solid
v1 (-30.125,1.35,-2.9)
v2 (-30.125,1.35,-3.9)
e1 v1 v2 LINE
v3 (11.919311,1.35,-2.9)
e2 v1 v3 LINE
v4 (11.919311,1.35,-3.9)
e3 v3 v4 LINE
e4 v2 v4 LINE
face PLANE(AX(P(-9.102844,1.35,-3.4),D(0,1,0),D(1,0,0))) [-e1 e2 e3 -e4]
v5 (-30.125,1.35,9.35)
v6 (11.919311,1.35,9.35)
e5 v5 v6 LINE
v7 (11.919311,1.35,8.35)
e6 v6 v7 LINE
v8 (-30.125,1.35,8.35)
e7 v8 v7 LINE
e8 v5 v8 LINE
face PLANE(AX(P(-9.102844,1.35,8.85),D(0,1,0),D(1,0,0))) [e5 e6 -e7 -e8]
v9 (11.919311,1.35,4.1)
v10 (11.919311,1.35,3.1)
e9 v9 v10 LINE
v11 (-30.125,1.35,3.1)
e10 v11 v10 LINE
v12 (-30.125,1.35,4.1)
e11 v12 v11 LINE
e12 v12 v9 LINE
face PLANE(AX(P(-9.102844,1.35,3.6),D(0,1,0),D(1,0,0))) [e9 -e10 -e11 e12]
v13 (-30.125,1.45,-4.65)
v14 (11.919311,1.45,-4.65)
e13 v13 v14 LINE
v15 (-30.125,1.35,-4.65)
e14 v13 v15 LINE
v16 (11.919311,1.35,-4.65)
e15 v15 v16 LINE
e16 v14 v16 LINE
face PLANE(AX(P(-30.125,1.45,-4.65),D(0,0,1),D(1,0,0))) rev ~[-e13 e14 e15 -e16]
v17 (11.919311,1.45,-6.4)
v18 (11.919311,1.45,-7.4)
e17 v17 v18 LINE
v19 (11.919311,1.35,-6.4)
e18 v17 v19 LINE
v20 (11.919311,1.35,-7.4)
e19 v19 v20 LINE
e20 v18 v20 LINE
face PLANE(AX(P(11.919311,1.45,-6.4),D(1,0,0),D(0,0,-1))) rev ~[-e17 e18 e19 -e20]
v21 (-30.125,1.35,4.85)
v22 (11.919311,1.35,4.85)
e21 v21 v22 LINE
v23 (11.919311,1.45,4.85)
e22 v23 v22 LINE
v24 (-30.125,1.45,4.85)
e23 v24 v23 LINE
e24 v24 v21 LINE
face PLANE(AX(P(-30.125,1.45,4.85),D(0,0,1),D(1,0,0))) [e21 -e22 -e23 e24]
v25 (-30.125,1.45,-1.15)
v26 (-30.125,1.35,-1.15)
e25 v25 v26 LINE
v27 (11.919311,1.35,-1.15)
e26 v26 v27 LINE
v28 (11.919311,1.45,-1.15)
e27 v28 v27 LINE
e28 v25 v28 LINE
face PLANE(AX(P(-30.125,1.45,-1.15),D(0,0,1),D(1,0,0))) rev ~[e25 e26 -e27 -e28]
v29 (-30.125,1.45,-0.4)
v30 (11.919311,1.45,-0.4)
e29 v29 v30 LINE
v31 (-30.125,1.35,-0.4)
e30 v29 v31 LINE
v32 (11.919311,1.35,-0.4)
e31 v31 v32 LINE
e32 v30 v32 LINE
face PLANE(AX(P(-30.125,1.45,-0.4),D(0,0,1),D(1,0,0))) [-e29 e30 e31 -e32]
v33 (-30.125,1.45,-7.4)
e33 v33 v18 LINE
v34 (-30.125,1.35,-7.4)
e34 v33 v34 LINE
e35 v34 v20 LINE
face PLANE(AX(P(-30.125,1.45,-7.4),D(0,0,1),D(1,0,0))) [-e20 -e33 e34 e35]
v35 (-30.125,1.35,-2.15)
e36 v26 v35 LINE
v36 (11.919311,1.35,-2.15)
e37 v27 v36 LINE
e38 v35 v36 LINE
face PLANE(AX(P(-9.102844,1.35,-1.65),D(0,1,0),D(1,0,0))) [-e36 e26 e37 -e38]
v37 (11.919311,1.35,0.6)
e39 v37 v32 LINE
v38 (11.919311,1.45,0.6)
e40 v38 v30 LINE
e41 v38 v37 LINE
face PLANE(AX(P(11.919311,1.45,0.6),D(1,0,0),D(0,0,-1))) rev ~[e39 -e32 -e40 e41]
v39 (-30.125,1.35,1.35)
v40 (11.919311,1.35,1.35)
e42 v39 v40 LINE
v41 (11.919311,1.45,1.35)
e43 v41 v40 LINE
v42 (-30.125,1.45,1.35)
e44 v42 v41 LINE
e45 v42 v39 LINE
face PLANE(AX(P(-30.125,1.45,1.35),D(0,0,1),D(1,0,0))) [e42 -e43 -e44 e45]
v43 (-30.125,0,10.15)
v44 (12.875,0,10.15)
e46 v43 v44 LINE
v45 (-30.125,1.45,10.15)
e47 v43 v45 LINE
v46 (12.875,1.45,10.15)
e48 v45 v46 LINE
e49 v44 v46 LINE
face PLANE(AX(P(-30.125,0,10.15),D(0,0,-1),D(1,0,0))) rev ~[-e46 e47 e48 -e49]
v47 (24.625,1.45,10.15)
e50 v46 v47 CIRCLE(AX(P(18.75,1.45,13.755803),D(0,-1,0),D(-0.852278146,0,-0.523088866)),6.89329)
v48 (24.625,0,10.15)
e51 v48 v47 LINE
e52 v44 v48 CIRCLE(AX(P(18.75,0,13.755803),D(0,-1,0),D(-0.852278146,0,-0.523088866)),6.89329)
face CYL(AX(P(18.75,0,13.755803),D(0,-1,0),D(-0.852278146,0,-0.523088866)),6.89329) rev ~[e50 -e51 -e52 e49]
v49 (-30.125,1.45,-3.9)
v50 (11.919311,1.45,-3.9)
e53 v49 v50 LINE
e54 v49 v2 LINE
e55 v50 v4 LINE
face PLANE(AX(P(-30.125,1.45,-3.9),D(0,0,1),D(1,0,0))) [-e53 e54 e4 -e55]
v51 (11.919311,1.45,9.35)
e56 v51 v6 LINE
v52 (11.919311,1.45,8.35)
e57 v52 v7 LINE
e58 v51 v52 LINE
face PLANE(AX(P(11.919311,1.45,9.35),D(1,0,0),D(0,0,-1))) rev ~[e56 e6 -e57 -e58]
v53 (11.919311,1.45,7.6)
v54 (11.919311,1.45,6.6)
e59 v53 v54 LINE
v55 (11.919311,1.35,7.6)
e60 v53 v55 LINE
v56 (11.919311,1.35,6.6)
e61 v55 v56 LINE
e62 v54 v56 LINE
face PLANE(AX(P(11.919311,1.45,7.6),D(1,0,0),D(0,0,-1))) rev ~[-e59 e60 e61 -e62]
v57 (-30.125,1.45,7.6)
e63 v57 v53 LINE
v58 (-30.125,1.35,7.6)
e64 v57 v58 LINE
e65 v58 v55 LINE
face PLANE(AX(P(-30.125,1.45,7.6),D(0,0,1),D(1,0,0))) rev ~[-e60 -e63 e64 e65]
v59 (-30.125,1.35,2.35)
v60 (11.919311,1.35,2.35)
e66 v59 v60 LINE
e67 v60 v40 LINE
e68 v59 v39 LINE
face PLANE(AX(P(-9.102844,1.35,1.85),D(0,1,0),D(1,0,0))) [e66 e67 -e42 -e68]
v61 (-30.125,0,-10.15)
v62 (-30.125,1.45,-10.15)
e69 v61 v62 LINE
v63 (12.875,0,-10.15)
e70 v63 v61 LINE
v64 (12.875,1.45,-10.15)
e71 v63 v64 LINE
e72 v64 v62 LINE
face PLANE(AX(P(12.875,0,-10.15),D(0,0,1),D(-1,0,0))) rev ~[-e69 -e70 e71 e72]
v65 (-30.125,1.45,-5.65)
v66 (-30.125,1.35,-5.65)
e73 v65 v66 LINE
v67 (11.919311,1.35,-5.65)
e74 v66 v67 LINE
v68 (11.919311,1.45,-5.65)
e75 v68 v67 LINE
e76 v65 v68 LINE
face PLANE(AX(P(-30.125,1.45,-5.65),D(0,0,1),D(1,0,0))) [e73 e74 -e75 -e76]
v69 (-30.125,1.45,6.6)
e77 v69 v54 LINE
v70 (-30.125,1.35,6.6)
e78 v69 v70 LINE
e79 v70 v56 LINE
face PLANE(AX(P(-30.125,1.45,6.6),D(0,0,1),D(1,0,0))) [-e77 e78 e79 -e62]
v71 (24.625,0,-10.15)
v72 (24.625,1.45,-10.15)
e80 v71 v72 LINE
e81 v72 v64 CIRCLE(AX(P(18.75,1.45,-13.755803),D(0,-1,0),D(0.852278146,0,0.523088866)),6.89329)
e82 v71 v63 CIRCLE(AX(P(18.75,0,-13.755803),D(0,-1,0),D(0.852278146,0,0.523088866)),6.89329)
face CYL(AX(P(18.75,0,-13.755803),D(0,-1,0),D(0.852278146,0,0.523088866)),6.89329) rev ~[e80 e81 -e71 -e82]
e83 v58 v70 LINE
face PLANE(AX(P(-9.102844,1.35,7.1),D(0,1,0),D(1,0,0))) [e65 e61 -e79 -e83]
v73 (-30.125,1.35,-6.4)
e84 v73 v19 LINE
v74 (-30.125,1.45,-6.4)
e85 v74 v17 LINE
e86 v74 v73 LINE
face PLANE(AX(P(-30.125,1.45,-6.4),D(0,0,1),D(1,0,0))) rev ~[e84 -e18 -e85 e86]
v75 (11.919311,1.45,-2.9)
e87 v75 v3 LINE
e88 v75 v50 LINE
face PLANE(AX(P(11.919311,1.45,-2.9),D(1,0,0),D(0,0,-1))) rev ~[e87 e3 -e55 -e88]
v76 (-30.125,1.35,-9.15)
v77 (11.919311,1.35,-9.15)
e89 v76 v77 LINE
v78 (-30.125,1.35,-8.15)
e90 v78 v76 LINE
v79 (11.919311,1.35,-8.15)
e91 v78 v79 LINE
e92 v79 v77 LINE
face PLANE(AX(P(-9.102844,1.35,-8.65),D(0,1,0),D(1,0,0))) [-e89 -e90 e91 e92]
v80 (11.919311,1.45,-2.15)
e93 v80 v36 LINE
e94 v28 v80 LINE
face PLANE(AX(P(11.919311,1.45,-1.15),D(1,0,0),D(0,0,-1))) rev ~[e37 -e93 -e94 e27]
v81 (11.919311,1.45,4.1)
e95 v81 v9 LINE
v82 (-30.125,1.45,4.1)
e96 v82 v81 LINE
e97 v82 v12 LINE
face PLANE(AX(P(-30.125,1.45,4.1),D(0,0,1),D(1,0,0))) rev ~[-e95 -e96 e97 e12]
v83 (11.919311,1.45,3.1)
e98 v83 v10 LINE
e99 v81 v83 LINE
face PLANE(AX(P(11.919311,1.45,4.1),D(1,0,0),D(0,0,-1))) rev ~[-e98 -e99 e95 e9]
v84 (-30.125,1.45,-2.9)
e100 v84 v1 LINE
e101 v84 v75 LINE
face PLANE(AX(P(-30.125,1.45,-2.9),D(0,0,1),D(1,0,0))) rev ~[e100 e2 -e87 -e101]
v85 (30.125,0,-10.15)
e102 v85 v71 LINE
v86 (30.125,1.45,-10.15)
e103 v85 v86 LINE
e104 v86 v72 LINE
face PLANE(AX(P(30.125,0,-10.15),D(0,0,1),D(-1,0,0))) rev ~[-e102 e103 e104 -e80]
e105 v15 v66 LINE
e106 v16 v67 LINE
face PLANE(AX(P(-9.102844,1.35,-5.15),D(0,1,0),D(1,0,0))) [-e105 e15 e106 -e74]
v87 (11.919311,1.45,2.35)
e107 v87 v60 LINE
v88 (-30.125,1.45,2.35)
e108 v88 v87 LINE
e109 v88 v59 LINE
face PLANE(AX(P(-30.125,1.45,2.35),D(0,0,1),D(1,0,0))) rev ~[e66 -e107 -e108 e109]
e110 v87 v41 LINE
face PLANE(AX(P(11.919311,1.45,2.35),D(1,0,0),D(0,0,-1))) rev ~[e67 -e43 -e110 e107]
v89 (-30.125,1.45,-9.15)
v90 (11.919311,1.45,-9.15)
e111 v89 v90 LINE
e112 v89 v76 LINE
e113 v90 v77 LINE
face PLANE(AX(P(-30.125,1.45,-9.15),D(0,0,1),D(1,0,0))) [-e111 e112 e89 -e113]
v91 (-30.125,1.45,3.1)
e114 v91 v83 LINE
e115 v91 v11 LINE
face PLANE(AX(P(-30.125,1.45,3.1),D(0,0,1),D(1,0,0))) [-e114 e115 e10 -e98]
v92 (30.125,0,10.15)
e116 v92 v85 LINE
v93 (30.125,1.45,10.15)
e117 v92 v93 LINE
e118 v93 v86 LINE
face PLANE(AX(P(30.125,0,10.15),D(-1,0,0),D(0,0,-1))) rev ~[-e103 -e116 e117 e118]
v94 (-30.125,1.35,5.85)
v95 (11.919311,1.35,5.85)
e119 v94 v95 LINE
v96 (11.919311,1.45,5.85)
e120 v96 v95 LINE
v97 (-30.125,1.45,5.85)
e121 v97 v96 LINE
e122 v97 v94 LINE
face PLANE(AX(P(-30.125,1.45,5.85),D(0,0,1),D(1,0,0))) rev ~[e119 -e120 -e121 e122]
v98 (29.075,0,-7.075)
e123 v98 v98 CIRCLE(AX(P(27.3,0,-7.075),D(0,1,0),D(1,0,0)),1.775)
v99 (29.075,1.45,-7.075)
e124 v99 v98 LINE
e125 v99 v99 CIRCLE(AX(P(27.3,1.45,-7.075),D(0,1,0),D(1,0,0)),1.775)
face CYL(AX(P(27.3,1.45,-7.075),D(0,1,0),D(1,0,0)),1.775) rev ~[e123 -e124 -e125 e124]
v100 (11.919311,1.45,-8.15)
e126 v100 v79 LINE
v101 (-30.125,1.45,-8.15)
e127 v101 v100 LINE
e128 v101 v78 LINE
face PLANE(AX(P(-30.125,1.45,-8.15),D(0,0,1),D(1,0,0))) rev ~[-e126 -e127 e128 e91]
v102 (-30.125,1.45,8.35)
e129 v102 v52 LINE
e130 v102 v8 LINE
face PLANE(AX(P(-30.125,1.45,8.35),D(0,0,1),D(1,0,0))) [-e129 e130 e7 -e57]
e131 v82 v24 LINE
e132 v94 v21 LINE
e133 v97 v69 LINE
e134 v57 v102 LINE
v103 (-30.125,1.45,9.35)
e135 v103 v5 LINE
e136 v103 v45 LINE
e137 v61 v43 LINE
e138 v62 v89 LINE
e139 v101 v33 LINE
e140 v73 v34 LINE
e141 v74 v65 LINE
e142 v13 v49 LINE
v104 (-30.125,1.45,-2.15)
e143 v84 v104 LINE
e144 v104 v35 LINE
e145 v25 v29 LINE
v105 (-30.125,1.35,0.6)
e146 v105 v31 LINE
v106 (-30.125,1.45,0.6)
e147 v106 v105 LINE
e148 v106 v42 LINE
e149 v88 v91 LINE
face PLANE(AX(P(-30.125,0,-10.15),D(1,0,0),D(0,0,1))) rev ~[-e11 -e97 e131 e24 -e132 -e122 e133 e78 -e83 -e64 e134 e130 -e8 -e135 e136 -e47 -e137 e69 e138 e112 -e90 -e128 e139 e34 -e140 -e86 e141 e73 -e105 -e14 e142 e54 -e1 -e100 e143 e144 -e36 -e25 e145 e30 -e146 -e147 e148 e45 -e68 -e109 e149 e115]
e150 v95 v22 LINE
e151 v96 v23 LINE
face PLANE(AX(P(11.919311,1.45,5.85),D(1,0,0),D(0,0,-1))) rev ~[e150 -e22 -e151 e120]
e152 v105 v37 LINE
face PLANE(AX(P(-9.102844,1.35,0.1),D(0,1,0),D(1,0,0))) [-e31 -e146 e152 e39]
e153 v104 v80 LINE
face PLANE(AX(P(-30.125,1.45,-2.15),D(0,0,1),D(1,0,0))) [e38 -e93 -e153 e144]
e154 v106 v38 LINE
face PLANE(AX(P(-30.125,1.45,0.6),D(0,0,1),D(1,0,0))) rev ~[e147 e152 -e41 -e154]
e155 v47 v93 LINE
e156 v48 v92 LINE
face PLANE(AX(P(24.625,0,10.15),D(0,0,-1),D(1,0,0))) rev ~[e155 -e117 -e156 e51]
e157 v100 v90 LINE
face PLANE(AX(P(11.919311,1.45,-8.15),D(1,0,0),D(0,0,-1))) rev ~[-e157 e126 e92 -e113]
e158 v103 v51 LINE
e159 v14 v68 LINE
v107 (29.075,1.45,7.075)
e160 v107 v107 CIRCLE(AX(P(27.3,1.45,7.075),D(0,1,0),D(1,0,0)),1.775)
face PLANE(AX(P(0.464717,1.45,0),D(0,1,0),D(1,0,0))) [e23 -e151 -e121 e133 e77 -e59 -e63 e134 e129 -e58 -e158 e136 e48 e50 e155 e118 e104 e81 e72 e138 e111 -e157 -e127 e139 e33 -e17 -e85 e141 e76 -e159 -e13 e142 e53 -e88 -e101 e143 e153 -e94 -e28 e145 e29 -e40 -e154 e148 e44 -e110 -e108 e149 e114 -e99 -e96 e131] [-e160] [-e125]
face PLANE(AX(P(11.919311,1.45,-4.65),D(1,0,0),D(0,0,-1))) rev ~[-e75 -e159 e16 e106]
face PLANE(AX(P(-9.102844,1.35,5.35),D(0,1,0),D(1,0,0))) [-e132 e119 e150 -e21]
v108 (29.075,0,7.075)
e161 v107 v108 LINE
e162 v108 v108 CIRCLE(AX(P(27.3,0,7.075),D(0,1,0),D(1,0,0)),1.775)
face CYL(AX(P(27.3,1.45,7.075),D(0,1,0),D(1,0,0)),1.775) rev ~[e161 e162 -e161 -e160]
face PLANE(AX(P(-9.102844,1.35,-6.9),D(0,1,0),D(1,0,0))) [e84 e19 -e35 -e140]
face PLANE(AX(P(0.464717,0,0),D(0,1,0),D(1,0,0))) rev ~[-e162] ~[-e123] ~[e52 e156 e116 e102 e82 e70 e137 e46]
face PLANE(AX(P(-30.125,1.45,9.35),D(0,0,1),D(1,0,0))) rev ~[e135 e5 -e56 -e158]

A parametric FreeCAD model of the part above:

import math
import FreeCAD as App
import Part
import Sketcher


def add_polygon(sketch, points):
    """Adds a closed chain of lines whose ends are joined by coincident constraints."""
    first, n = sketch.GeometryCount, len(points)
    for a, b in zip(points, points[1:] + points[:1]):
        sketch.addGeometry(Part.LineSegment(App.Vector(*a, 0), App.Vector(*b, 0)), False)
    for i in range(n):
        sketch.addConstraint(Sketcher.Constraint("Coincident", first + i, 2, first + (i + 1) % n, 1))

doc = App.newDocument("Part")
body = doc.addObject("PartDesign::Body", "Body")

# Sketch on XZ plane
sketch1 = body.newObject("Sketcher::SketchObject", "Sketch")
sketch1.AttachmentSupport = (doc.getObject("XZ_Plane"), [""])
sketch1.MapMode = "FlatFace"
sketch1.addGeometry([
    Part.LineSegment(App.Vector(-30, 10, 0), App.Vector(13, 10, 0)),  # 0
    Part.ArcOfCircle(Part.Circle(App.Vector(19, 14, 0), App.Vector(0, 0, 1), 7), math.radians(-148), math.radians(-32)),  # 1
    Part.LineSegment(App.Vector(25, 10, 0), App.Vector(30, 10, 0)),  # 2
    Part.LineSegment(App.Vector(30, 10, 0), App.Vector(30, -10, 0)),  # 3
    Part.LineSegment(App.Vector(30, -10, 0), App.Vector(25, -10, 0)),  # 4
    Part.ArcOfCircle(Part.Circle(App.Vector(19, -14, 0), App.Vector(0, 0, 1), 7), math.radians(32), math.radians(148)),  # 5
    Part.LineSegment(App.Vector(13, -10, 0), App.Vector(-30, -10, 0)),  # 6
    Part.LineSegment(App.Vector(-30, -10, 0), App.Vector(-30, 10, 0)),  # 7
], False)
sketch1.addConstraint([
    Sketcher.Constraint("Coincident", 0, 2, 1, 1),
    Sketcher.Constraint("Coincident", 1, 2, 2, 1),
    Sketcher.Constraint("Coincident", 2, 2, 3, 1),
    Sketcher.Constraint("Coincident", 3, 2, 4, 1),
    Sketcher.Constraint("Coincident", 4, 2, 5, 1),
    Sketcher.Constraint("Coincident", 5, 2, 6, 1),
    Sketcher.Constraint("Coincident", 6, 2, 7, 1),
    Sketcher.Constraint("Coincident", 7, 2, 0, 1),
    Sketcher.Constraint("Horizontal", 0),
    Sketcher.Constraint("Horizontal", 2),
    Sketcher.Constraint("Vertical", 3),
    Sketcher.Constraint("Horizontal", 4),
    Sketcher.Constraint("Horizontal", 6),
    Sketcher.Constraint("Vertical", 7),
    Sketcher.Constraint("Equal", 1, 5),
    Sketcher.Constraint("Symmetric", 2, 2, 6, 2, -1, 1),
    Sketcher.Constraint("Symmetric", 1, 3, 5, 3, -1),
    Sketcher.Constraint("Horizontal", 0, 2, 1, 2),
    Sketcher.Constraint("Horizontal", 4, 2, 5, 2),
    Sketcher.Constraint("DistanceX", 0, 1, 0, 2, 43.0),
    Sketcher.Constraint("DistanceX", 2, 1, 2, 2, 5.5),
    Sketcher.Constraint("DistanceY", 3, 2, 3, 1, 20.3),
    Sketcher.Constraint("Radius", 1, 6.89329),
    Sketcher.Constraint("DistanceX", 0, 2, 1, 2, 11.75),
])
pad1 = body.newObject("PartDesign::Pad", "Pad")
pad1.Profile = sketch1
pad1.Length = 1.45
pad1.Reversed = True

# Sketch on XZ plane
sketch2 = body.newObject("Sketcher::SketchObject", "Sketch001")
sketch2.AttachmentSupport = (doc.getObject("XZ_Plane"), [""])
sketch2.MapMode = "FlatFace"
sketch2.AttachmentOffset = App.Placement(App.Vector(0, 0, -1.45), App.Rotation())
sketch2.addGeometry([
    Part.Circle(App.Vector(27.3, -7.1, 0), App.Vector(0, 0, 1), 1.8),
    Part.Circle(App.Vector(27.3, 7.1, 0), App.Vector(0, 0, 1), 1.8),
], False)
sketch2.addConstraint([
    Sketcher.Constraint("Equal", 0, 1),
    Sketcher.Constraint("Symmetric", 0, 3, 1, 3, -1),
    Sketcher.Constraint("Diameter", 0, 3.55),
    Sketcher.Constraint("DistanceX", -1, 1, 0, 3, 27.3),
    Sketcher.Constraint("DistanceY", 0, 3, 1, 3, 14.15),
])
pocket1 = body.newObject("PartDesign::Pocket", "Pocket")
pocket1.Profile = sketch2
pocket1.Type = "ThroughAll"
pocket1.Reversed = True

# Sketch on XZ plane
sketch3 = body.newObject("Sketcher::SketchObject", "Sketch002")
sketch3.AttachmentSupport = (doc.getObject("XZ_Plane"), [""])
sketch3.MapMode = "FlatFace"
sketch3.AttachmentOffset = App.Placement(App.Vector(0, 0, -1.45), App.Rotation())
add_polygon(sketch3, [(-30.1, -9.2), (-30.1, -8.2), (11.9, -8.2), (11.9, -9.2)])  # lines 0-3
add_polygon(sketch3, [(-30.1, -7.4), (-30.1, -6.4), (11.9, -6.4), (11.9, -7.4)])  # lines 4-7
add_polygon(sketch3, [(-30.1, -5.7), (-30.1, -4.7), (11.9, -4.7), (11.9, -5.7)])  # lines 8-11
add_polygon(sketch3, [(-30.1, -3.9), (-30.1, -2.9), (11.9, -2.9), (11.9, -3.9)])  # lines 12-15
add_polygon(sketch3, [(-30.1, -2.1), (-30.1, -1.1), (11.9, -1.1), (11.9, -2.1)])  # lines 16-19
add_polygon(sketch3, [(-30.1, -0.4), (-30.1, 0.6), (11.9, 0.6), (11.9, -0.4)])  # lines 20-23
add_polygon(sketch3, [(-30.1, 1.4), (-30.1, 2.4), (11.9, 2.4), (11.9, 1.4)])  # lines 24-27
add_polygon(sketch3, [(-30.1, 3.1), (-30.1, 4.1), (11.9, 4.1), (11.9, 3.1)])  # lines 28-31
add_polygon(sketch3, [(-30.1, 4.8), (-30.1, 5.8), (11.9, 5.8), (11.9, 4.8)])  # lines 32-35
add_polygon(sketch3, [(-30.1, 6.6), (-30.1, 7.6), (11.9, 7.6), (11.9, 6.6)])  # lines 36-39
add_polygon(sketch3, [(-30.1, 8.3), (-30.1, 9.3), (11.9, 9.3), (11.9, 8.3)])  # lines 40-43
sketch3.addConstraint([
    Sketcher.Constraint("Vertical", 0),
    Sketcher.Constraint("Horizontal", 1),
    Sketcher.Constraint("Vertical", 2),
    Sketcher.Constraint("Horizontal", 3),
    Sketcher.Constraint("Vertical", 4),
    Sketcher.Constraint("Horizontal", 5),
    Sketcher.Constraint("Vertical", 6),
    Sketcher.Constraint("Horizontal", 7),
    Sketcher.Constraint("Vertical", 8),
    Sketcher.Constraint("Horizontal", 9),
    Sketcher.Constraint("Vertical", 10),
    Sketcher.Constraint("Horizontal", 11),
    Sketcher.Constraint("Vertical", 12),
    Sketcher.Constraint("Horizontal", 13),
    Sketcher.Constraint("Vertical", 14),
    Sketcher.Constraint("Horizontal", 15),
    Sketcher.Constraint("Vertical", 16),
    Sketcher.Constraint("Horizontal", 17),
    Sketcher.Constraint("Vertical", 18),
    Sketcher.Constraint("Horizontal", 19),
    Sketcher.Constraint("Vertical", 20),
    Sketcher.Constraint("Horizontal", 21),
    Sketcher.Constraint("Vertical", 22),
    Sketcher.Constraint("Horizontal", 23),
    Sketcher.Constraint("Vertical", 24),
    Sketcher.Constraint("Horizontal", 25),
    Sketcher.Constraint("Vertical", 26),
    Sketcher.Constraint("Horizontal", 27),
    Sketcher.Constraint("Vertical", 28),
    Sketcher.Constraint("Horizontal", 29),
    Sketcher.Constraint("Vertical", 30),
    Sketcher.Constraint("Horizontal", 31),
    Sketcher.Constraint("Vertical", 32),
    Sketcher.Constraint("Horizontal", 33),
    Sketcher.Constraint("Vertical", 34),
    Sketcher.Constraint("Horizontal", 35),
    Sketcher.Constraint("Vertical", 36),
    Sketcher.Constraint("Horizontal", 37),
    Sketcher.Constraint("Vertical", 38),
    Sketcher.Constraint("Horizontal", 39),
    Sketcher.Constraint("Vertical", 40),
    Sketcher.Constraint("Horizontal", 41),
    Sketcher.Constraint("Vertical", 42),
    Sketcher.Constraint("Horizontal", 43),
    Sketcher.Constraint("Vertical", 3, 2, 4, 2),
    Sketcher.Constraint("Vertical", 2, 2, 5, 2),
    Sketcher.Constraint("Vertical", 7, 2, 8, 2),
    Sketcher.Constraint("Vertical", 6, 2, 9, 2),
    Sketcher.Constraint("Vertical", 11, 2, 12, 2),
    Sketcher.Constraint("Vertical", 10, 2, 13, 2),
    Sketcher.Constraint("Vertical", 15, 2, 16, 2),
    Sketcher.Constraint("Vertical", 14, 2, 17, 2),
    Sketcher.Constraint("Vertical", 19, 2, 20, 2),
    Sketcher.Constraint("Vertical", 18, 2, 21, 2),
    Sketcher.Constraint("Vertical", 23, 2, 24, 2),
    Sketcher.Constraint("Vertical", 22, 2, 25, 2),
    Sketcher.Constraint("Vertical", 27, 2, 28, 2),
    Sketcher.Constraint("Vertical", 26, 2, 29, 2),
    Sketcher.Constraint("Vertical", 31, 2, 32, 2),
    Sketcher.Constraint("Vertical", 30, 2, 33, 2),
    Sketcher.Constraint("Vertical", 35, 2, 36, 2),
    Sketcher.Constraint("Vertical", 34, 2, 37, 2),
    Sketcher.Constraint("Vertical", 39, 2, 40, 2),
    Sketcher.Constraint("Vertical", 38, 2, 41, 2),
    Sketcher.Constraint("Equal", 2, 4),
    Sketcher.Constraint("Equal", 6, 8),
    Sketcher.Constraint("Equal", 10, 12),
    Sketcher.Constraint("Equal", 14, 16),
    Sketcher.Constraint("Equal", 18, 20),
    Sketcher.Constraint("Equal", 22, 24),
    Sketcher.Constraint("Equal", 26, 28),
    Sketcher.Constraint("Equal", 30, 32),
    Sketcher.Constraint("Equal", 34, 36),
    Sketcher.Constraint("Equal", 38, 40),
    Sketcher.Constraint("DistanceY", 0, 1, 0, 2, 1.0),
    Sketcher.Constraint("DistanceY", 4, 2, -1, 1, 6.4),
    Sketcher.Constraint("DistanceY", 12, 2, -1, 1, 2.9),
    Sketcher.Constraint("DistanceY", -1, 1, 20, 2, 0.6),
    Sketcher.Constraint("DistanceY", -1, 1, 28, 2, 4.1),
    Sketcher.Constraint("DistanceY", -1, 1, 36, 2, 7.6),
    Sketcher.Constraint("DistanceY", 0, 2, 8, 2, 3.5),
    Sketcher.Constraint("DistanceY", 8, 2, 16, 2, 3.5),
    Sketcher.Constraint("DistanceY", 16, 2, 24, 2, 3.5),
    Sketcher.Constraint("DistanceY", 24, 2, 32, 2, 3.5),
    Sketcher.Constraint("DistanceY", 32, 2, 40, 2, 3.5),
    Sketcher.Constraint("DistanceY", 0, 2, -1, 1, 8.15),
    Sketcher.Constraint("DistanceX", 0, 2, -1, 1, 30.125),
    Sketcher.Constraint("DistanceX", 1, 1, 1, 2, 42.044311),
])
pocket2 = body.newObject("PartDesign::Pocket", "Pocket001")
pocket2.Profile = sketch3
pocket2.Length = 0.1
pocket2.Reversed = True

doc.recompute()
